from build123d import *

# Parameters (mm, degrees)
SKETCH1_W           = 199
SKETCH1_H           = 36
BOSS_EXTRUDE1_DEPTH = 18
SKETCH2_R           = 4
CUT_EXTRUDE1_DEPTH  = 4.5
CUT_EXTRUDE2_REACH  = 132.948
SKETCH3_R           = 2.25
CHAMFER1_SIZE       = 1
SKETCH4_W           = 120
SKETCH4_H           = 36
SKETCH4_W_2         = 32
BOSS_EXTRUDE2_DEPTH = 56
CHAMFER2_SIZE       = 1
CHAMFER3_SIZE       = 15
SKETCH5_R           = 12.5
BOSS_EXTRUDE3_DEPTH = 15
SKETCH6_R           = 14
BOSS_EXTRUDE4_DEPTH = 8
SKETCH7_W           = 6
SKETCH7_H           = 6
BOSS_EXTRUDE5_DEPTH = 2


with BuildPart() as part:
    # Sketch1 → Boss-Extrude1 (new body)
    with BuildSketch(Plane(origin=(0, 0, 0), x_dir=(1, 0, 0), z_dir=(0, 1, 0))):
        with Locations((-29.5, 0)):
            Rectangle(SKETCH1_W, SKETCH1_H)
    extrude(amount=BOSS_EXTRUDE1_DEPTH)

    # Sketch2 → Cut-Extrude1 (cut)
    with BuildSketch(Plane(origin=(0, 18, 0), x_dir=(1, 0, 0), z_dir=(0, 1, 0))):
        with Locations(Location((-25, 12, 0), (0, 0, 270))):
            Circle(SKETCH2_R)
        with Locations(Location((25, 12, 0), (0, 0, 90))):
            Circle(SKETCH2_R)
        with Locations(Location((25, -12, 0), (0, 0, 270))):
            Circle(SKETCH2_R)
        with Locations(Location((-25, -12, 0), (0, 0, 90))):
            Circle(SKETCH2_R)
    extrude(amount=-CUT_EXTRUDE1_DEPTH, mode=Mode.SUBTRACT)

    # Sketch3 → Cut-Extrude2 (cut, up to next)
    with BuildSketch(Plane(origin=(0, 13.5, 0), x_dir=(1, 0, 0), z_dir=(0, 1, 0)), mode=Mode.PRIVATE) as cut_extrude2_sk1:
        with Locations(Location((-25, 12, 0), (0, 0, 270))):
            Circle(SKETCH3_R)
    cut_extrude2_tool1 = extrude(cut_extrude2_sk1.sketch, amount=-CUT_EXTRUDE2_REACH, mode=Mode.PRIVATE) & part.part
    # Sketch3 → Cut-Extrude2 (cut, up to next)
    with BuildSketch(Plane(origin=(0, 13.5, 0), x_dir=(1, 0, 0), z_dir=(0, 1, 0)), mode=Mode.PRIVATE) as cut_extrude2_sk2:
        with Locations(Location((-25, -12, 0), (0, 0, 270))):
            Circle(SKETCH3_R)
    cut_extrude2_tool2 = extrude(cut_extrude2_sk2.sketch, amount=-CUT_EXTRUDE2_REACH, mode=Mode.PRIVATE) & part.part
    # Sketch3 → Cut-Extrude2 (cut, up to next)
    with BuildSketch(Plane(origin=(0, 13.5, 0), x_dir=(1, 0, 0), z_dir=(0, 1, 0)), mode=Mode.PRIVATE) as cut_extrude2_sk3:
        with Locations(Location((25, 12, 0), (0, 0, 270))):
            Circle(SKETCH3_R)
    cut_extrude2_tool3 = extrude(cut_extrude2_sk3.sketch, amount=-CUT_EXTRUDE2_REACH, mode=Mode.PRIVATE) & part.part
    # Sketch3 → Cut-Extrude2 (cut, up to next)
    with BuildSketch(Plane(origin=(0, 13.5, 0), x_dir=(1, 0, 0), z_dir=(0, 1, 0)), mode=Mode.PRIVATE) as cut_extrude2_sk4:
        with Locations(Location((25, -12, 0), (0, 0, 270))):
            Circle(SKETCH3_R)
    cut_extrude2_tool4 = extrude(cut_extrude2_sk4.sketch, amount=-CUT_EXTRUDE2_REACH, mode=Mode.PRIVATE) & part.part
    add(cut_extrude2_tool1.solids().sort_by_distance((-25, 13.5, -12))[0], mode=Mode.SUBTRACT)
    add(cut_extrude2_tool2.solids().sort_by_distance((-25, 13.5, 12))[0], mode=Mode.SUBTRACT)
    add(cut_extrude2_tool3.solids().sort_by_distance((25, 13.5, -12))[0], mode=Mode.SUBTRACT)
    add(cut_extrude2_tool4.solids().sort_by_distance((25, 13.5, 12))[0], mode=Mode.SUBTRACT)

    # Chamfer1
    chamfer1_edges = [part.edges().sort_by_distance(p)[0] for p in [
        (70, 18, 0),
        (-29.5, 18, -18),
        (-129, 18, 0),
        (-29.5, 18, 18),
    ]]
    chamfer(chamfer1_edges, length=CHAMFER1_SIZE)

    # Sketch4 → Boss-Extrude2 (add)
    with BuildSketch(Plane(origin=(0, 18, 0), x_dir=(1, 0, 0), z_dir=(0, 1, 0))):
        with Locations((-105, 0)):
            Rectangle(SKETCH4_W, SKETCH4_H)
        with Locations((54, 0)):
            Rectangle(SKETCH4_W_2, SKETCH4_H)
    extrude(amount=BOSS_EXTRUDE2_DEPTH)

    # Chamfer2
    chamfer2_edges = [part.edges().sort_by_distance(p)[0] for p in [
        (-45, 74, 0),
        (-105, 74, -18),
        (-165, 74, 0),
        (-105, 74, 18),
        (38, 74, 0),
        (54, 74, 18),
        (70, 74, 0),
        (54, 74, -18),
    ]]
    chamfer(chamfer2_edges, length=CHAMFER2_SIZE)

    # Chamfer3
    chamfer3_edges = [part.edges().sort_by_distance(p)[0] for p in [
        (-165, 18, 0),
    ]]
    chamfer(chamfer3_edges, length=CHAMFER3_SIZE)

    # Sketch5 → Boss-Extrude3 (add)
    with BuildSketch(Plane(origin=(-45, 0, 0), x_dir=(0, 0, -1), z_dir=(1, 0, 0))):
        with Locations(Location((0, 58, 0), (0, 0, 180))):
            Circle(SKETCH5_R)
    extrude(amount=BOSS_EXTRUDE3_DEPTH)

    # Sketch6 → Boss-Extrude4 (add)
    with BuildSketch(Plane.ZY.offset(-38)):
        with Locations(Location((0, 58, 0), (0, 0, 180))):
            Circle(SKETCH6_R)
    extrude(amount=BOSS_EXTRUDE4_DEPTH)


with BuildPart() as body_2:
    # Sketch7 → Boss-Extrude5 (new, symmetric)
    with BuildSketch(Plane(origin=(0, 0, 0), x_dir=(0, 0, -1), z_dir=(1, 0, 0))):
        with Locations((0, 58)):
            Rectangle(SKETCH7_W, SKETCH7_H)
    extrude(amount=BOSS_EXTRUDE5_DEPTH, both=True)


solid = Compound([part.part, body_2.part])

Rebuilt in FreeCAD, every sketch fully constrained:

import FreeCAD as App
import Part
import Sketcher


def edges_at(feature, points):
    """Names of the edges that pass closest to the given points."""
    edges = feature.Shape.Edges
    near = lambda p: min(range(len(edges)), key=lambda i: edges[i].distToShape(Part.Vertex(*p))[0])
    return sorted({f"Edge{near(p) + 1}" for p in points})


def add_polygon(sketch, points):
    """Adds a closed chain of lines whose ends are joined by coincident constraints."""
    first, n = sketch.GeometryCount, len(points)
    for a, b in zip(points, points[1:] + points[:1]):
        sketch.addGeometry(Part.LineSegment(App.Vector(*a, 0), App.Vector(*b, 0)), False)
    for i in range(n):
        sketch.addConstraint(Sketcher.Constraint("Coincident", first + i, 2, first + (i + 1) % n, 1))

doc = App.newDocument("Part")
body = doc.addObject("PartDesign::Body", "Body")

# Sketch on XZ plane
sketch1 = body.newObject("Sketcher::SketchObject", "Sketch")
sketch1.AttachmentSupport = (doc.getObject("XZ_Plane"), [""])
sketch1.MapMode = "FlatFace"
add_polygon(sketch1, [(-129, -18), (-129, 18), (70, 18), (70, -18)])  # lines 0-3
sketch1.addConstraint([
    Sketcher.Constraint("Vertical", 0),
    Sketcher.Constraint("Horizontal", 1),
    Sketcher.Constraint("Vertical", 2),
    Sketcher.Constraint("Horizontal", 3),
    Sketcher.Constraint("DistanceX", 1, 1, 1, 2, 199.0),
    Sketcher.Constraint("DistanceY", 0, 1, 0, 2, 36.0),
    Sketcher.Constraint("DistanceX", 0, 2, -1, 1, 129.0),
    Sketcher.Constraint("DistanceY", -1, 1, 0, 2, 18.0),
])
pad1 = body.newObject("PartDesign::Pad", "Pad")
pad1.Profile = sketch1
pad1.Length = 18
pad1.Reversed = True

# Sketch on XZ plane
sketch2 = body.newObject("Sketcher::SketchObject", "Sketch001")
sketch2.AttachmentSupport = (doc.getObject("XZ_Plane"), [""])
sketch2.MapMode = "FlatFace"
sketch2.AttachmentOffset = App.Placement(App.Vector(0, 0, -18), App.Rotation())
sketch2.addGeometry([
    Part.Circle(App.Vector(-25, -12, 0), App.Vector(0, 0, 1), 4),
    Part.Circle(App.Vector(25, -12, 0), App.Vector(0, 0, 1), 4),
    Part.Circle(App.Vector(25, 12, 0), App.Vector(0, 0, 1), 4),
    Part.Circle(App.Vector(-25, 12, 0), App.Vector(0, 0, 1), 4),
], False)
sketch2.addConstraint([
    Sketcher.Constraint("Equal", 0, 1),
    Sketcher.Constraint("Equal", 1, 2),
    Sketcher.Constraint("Equal", 2, 3),
    Sketcher.Constraint("Symmetric", 0, 3, 2, 3, -1, 1),
    Sketcher.Constraint("Symmetric", 1, 3, 3, 3, -1, 1),
    Sketcher.Constraint("Symmetric", 0, 3, 1, 3, -2),
    Sketcher.Constraint("Diameter", 0, 8.0),
    Sketcher.Constraint("DistanceX", 0, 3, -1, 1, 25.0),
    Sketcher.Constraint("DistanceY", 0, 3, -1, 1, 12.0),
])
pocket1 = body.newObject("PartDesign::Pocket", "Pocket")
pocket1.Profile = sketch2
pocket1.Length = 4.5
pocket1.Reversed = True

# Sketch on XZ plane
sketch3 = body.newObject("Sketcher::SketchObject", "Sketch002")
sketch3.AttachmentSupport = (doc.getObject("XZ_Plane"), [""])
sketch3.MapMode = "FlatFace"
sketch3.AttachmentOffset = App.Placement(App.Vector(0, 0, -13.5), App.Rotation())
sketch3.addGeometry(Part.Circle(App.Vector(-25, -12, 0), App.Vector(0, 0, 1), 2.25), False)
sketch3.addConstraint([
    Sketcher.Constraint("Diameter", 0, 4.5),
    Sketcher.Constraint("DistanceX", 0, 3, -1, 1, 25.0),
    Sketcher.Constraint("DistanceY", 0, 3, -1, 1, 12.0),
])
pocket2 = body.newObject("PartDesign::Pocket", "Pocket001")
pocket2.Profile = sketch3
pocket2.Type = "UpToFirst"
pocket2.Reversed = True

# Sketch on XZ plane
sketch4 = body.newObject("Sketcher::SketchObject", "Sketch003")
sketch4.AttachmentSupport = (doc.getObject("XZ_Plane"), [""])
sketch4.MapMode = "FlatFace"
sketch4.AttachmentOffset = App.Placement(App.Vector(0, 0, -13.5), App.Rotation())
sketch4.addGeometry(Part.Circle(App.Vector(-25, 12, 0), App.Vector(0, 0, 1), 2.25), False)
sketch4.addConstraint([
    Sketcher.Constraint("Diameter", 0, 4.5),
    Sketcher.Constraint("DistanceX", 0, 3, -1, 1, 25.0),
    Sketcher.Constraint("DistanceY", -1, 1, 0, 3, 12.0),
])
pocket3 = body.newObject("PartDesign::Pocket", "Pocket002")
pocket3.Profile = sketch4
pocket3.Type = "UpToFirst"
pocket3.Reversed = True

# Sketch on XZ plane
sketch5 = body.newObject("Sketcher::SketchObject", "Sketch004")
sketch5.AttachmentSupport = (doc.getObject("XZ_Plane"), [""])
sketch5.MapMode = "FlatFace"
sketch5.AttachmentOffset = App.Placement(App.Vector(0, 0, -13.5), App.Rotation())
sketch5.addGeometry(Part.Circle(App.Vector(25, -12, 0), App.Vector(0, 0, 1), 2.25), False)
sketch5.addConstraint([
    Sketcher.Constraint("Diameter", 0, 4.5),
    Sketcher.Constraint("DistanceX", -1, 1, 0, 3, 25.0),
    Sketcher.Constraint("DistanceY", 0, 3, -1, 1, 12.0),
])
pocket4 = body.newObject("PartDesign::Pocket", "Pocket003")
pocket4.Profile = sketch5
pocket4.Type = "UpToFirst"
pocket4.Reversed = True

# Sketch on XZ plane
sketch6 = body.newObject("Sketcher::SketchObject", "Sketch005")
sketch6.AttachmentSupport = (doc.getObject("XZ_Plane"), [""])
sketch6.MapMode = "FlatFace"
sketch6.AttachmentOffset = App.Placement(App.Vector(0, 0, -13.5), App.Rotation())
sketch6.addGeometry(Part.Circle(App.Vector(25, 12, 0), App.Vector(0, 0, 1), 2.25), False)
sketch6.addConstraint([
    Sketcher.Constraint("Diameter", 0, 4.5),
    Sketcher.Constraint("DistanceX", -1, 1, 0, 3, 25.0),
    Sketcher.Constraint("DistanceY", -1, 1, 0, 3, 12.0),
])
pocket5 = body.newObject("PartDesign::Pocket", "Pocket004")
pocket5.Profile = sketch6
pocket5.Type = "UpToFirst"
pocket5.Reversed = True
doc.recompute()

chamfer = body.newObject("PartDesign::Chamfer", "Chamfer")
chamfer.Base = (pocket5, edges_at(pocket5, [
    (70, 18, 0),
    (-29.5, 18, -18),
    (-129, 18, 0),
    (-29.5, 18, 18),
]))
chamfer.Size = 1

# Sketch on XZ plane
sketch7 = body.newObject("Sketcher::SketchObject", "Sketch006")
sketch7.AttachmentSupport = (doc.getObject("XZ_Plane"), [""])
sketch7.MapMode = "FlatFace"
sketch7.AttachmentOffset = App.Placement(App.Vector(0, 0, -18), App.Rotation())
add_polygon(sketch7, [(-165, -18), (-165, 18), (-45, 18), (-45, -18)])  # lines 0-3
add_polygon(sketch7, [(38, -18), (38, 18), (70, 18), (70, -18)])  # lines 4-7
sketch7.addConstraint([
    Sketcher.Constraint("Vertical", 0),
    Sketcher.Constraint("Horizontal", 1),
    Sketcher.Constraint("Vertical", 2),
    Sketcher.Constraint("Horizontal", 3),
    Sketcher.Constraint("Vertical", 4),
    Sketcher.Constraint("Horizontal", 5),
    Sketcher.Constraint("Vertical", 6),
    Sketcher.Constraint("Horizontal", 7),
    Sketcher.Constraint("Horizontal", 1, 2, 4, 2),
    Sketcher.Constraint("Horizontal", 3, 2, 6, 2),
    Sketcher.Constraint("DistanceX", 1, 1, 1, 2, 120.0),
    Sketcher.Constraint("DistanceX", 5, 1, 5, 2, 32.0),
    Sketcher.Constraint("DistanceY", 0, 1, 0, 2, 36.0),
    Sketcher.Constraint("DistanceX", 0, 2, -1, 1, 165.0),
    Sketcher.Constraint("DistanceY", -1, 1, 0, 2, 18.0),
    Sketcher.Constraint("DistanceX", -1, 1, 4, 2, 38.0),
])
pad2 = body.newObject("PartDesign::Pad", "Pad001")
pad2.Profile = sketch7
pad2.Length = 56
pad2.Reversed = True
doc.recompute()

chamfer2 = body.newObject("PartDesign::Chamfer", "Chamfer001")
chamfer2.Base = (pad2, edges_at(pad2, [
    (-45, 74, 0),
    (-105, 74, -18),
    (-165, 74, 0),
    (-105, 74, 18),
    (38, 74, 0),
    (54, 74, 18),
    (70, 74, 0),
    (54, 74, -18),
]))
chamfer2.Size = 1
doc.recompute()

chamfer3 = body.newObject("PartDesign::Chamfer", "Chamfer002")
chamfer3.Base = (chamfer2, edges_at(chamfer2, [(-165, 18, 0)]))
chamfer3.Size = 15

# Sketch on YZ plane
sketch8 = body.newObject("Sketcher::SketchObject", "Sketch007")
sketch8.AttachmentSupport = (doc.getObject("YZ_Plane"), [""])
sketch8.MapMode = "FlatFace"
sketch8.AttachmentOffset = App.Placement(App.Vector(0, 0, -45), App.Rotation())
sketch8.addGeometry(Part.Circle(App.Vector(58, 0, 0), App.Vector(0, 0, 1), 12.5), False)
sketch8.addConstraint([
    Sketcher.Constraint("PointOnObject", 0, 3, -1),
    Sketcher.Constraint("Diameter", 0, 25.0),
    Sketcher.Constraint("DistanceX", -1, 1, 0, 3, 58.0),
])
pad3 = body.newObject("PartDesign::Pad", "Pad002")
pad3.Profile = sketch8
pad3.Length = 15

# Sketch on YZ plane
sketch9 = body.newObject("Sketcher::SketchObject", "Sketch008")
sketch9.AttachmentSupport = (doc.getObject("YZ_Plane"), [""])
sketch9.MapMode = "FlatFace"
sketch9.AttachmentOffset = App.Placement(App.Vector(0, 0, 38), App.Rotation())
sketch9.addGeometry(Part.Circle(App.Vector(58, 0, 0), App.Vector(0, 0, 1), 14), False)
sketch9.addConstraint([
    Sketcher.Constraint("PointOnObject", 0, 3, -1),
    Sketcher.Constraint("Diameter", 0, 28.0),
    Sketcher.Constraint("DistanceX", -1, 1, 0, 3, 58.0),
])
pad4 = body.newObject("PartDesign::Pad", "Pad003")
pad4.Profile = sketch9
pad4.Length = 8
pad4.Reversed = True
body2 = doc.addObject("PartDesign::Body", "Body001")

# Sketch on YZ plane
sketch10 = body2.newObject("Sketcher::SketchObject", "Sketch009")
sketch10.AttachmentSupport = (doc.getObject("YZ_Plane001"), [""])
sketch10.MapMode = "FlatFace"
add_polygon(sketch10, [(61, 3), (55, 3), (55, -3), (61, -3)])  # lines 0-3
sketch10.addConstraint([
    Sketcher.Constraint("Horizontal", 0),
    Sketcher.Constraint("Vertical", 1),
    Sketcher.Constraint("Horizontal", 2),
    Sketcher.Constraint("Vertical", 3),
    Sketcher.Constraint("Equal", 2, 1),
    Sketcher.Constraint("DistanceX", 0, 2, 0, 1, 6.0),
    Sketcher.Constraint("DistanceX", -1, 1, 0, 2, 55.0),
    Sketcher.Constraint("DistanceY", -1, 1, 0, 2, 3.0),
])
pad5 = body2.newObject("PartDesign::Pad", "Pad004")
pad5.Profile = sketch10
pad5.Length = 4
pad5.Midplane = True

doc.recompute()
